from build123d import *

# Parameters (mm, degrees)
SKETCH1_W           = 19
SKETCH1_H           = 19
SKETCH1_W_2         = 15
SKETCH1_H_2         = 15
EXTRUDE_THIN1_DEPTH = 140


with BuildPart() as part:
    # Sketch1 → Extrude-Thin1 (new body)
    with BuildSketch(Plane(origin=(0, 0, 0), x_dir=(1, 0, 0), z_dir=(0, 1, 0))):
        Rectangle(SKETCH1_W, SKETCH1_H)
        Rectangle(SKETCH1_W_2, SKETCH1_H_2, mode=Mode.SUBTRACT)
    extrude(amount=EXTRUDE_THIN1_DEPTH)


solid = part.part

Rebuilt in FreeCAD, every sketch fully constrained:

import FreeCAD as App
import Part
import Sketcher

doc = App.newDocument("Part")
body = doc.addObject("PartDesign::Body", "Body")

# Sketch on XZ plane
sketch1 = body.newObject("Sketcher::SketchObject", "Sketch")
sketch1.AttachmentSupport = (doc.getObject("XZ_Plane"), [""])
sketch1.MapMode = "FlatFace"
sketch1.addGeometry(Part.LineSegment(App.Vector(-9.5, -9.5, 0), App.Vector(-9.5, 9.5, 0)), False)
sketch1.addGeometry(Part.LineSegment(App.Vector(-9.5, 9.5, 0), App.Vector(9.5, 9.5, 0)), False)
sketch1.addGeometry(Part.LineSegment(App.Vector(9.5, 9.5, 0), App.Vector(9.5, -9.5, 0)), False)
sketch1.addGeometry(Part.LineSegment(App.Vector(9.5, -9.5, 0), App.Vector(-9.5, -9.5, 0)), False)
sketch1.addGeometry(Part.LineSegment(App.Vector(7.5, 7.5, 0), App.Vector(-7.5, 7.5, 0)), False)
sketch1.addGeometry(Part.LineSegment(App.Vector(-7.5, 7.5, 0), App.Vector(-7.5, -7.5, 0)), False)
sketch1.addGeometry(Part.LineSegment(App.Vector(-7.5, -7.5, 0), App.Vector(7.5, -7.5, 0)), False)
sketch1.addGeometry(Part.LineSegment(App.Vector(7.5, -7.5, 0), App.Vector(7.5, 7.5, 0)), False)
sketch1.addConstraint(Sketcher.Constraint("Coincident", 0, 2, 1, 1))
sketch1.addConstraint(Sketcher.Constraint("Coincident", 1, 2, 2, 1))
sketch1.addConstraint(Sketcher.Constraint("Coincident", 2, 2, 3, 1))
sketch1.addConstraint(Sketcher.Constraint("Coincident", 3, 2, 0, 1))
sketch1.addConstraint(Sketcher.Constraint("Coincident", 4, 2, 5, 1))
sketch1.addConstraint(Sketcher.Constraint("Coincident", 5, 2, 6, 1))
sketch1.addConstraint(Sketcher.Constraint("Coincident", 6, 2, 7, 1))
sketch1.addConstraint(Sketcher.Constraint("Coincident", 7, 2, 4, 1))
sketch1.addConstraint(Sketcher.Constraint("Vertical", 0))
sketch1.addConstraint(Sketcher.Constraint("Horizontal", 1))
sketch1.addConstraint(Sketcher.Constraint("Vertical", 2))
sketch1.addConstraint(Sketcher.Constraint("Horizontal", 3))
sketch1.addConstraint(Sketcher.Constraint("Horizontal", 4))
sketch1.addConstraint(Sketcher.Constraint("Vertical", 5))
sketch1.addConstraint(Sketcher.Constraint("Horizontal", 6))
sketch1.addConstraint(Sketcher.Constraint("Vertical", 7))
sketch1.addConstraint(Sketcher.Constraint("Symmetric", 0, 2, 2, 2, -1, 1))
sketch1.addConstraint(Sketcher.Constraint("Symmetric", 4, 2, 6, 2, -1, 1))
sketch1.addConstraint(Sketcher.Constraint("Equal", 3, 0))
sketch1.addConstraint(Sketcher.Constraint("Equal", 6, 5))
sketch1.addConstraint(Sketcher.Constraint("DistanceX", 1, 1, 1, 2, 19.0))
sketch1.addConstraint(Sketcher.Constraint("DistanceX", 4, 2, 4, 1, 15.0))
pad1 = body.newObject("PartDesign::Pad", "Pad")
pad1.Profile = sketch1
pad1.Length = 140
pad1.Reversed = True

doc.recompute()
